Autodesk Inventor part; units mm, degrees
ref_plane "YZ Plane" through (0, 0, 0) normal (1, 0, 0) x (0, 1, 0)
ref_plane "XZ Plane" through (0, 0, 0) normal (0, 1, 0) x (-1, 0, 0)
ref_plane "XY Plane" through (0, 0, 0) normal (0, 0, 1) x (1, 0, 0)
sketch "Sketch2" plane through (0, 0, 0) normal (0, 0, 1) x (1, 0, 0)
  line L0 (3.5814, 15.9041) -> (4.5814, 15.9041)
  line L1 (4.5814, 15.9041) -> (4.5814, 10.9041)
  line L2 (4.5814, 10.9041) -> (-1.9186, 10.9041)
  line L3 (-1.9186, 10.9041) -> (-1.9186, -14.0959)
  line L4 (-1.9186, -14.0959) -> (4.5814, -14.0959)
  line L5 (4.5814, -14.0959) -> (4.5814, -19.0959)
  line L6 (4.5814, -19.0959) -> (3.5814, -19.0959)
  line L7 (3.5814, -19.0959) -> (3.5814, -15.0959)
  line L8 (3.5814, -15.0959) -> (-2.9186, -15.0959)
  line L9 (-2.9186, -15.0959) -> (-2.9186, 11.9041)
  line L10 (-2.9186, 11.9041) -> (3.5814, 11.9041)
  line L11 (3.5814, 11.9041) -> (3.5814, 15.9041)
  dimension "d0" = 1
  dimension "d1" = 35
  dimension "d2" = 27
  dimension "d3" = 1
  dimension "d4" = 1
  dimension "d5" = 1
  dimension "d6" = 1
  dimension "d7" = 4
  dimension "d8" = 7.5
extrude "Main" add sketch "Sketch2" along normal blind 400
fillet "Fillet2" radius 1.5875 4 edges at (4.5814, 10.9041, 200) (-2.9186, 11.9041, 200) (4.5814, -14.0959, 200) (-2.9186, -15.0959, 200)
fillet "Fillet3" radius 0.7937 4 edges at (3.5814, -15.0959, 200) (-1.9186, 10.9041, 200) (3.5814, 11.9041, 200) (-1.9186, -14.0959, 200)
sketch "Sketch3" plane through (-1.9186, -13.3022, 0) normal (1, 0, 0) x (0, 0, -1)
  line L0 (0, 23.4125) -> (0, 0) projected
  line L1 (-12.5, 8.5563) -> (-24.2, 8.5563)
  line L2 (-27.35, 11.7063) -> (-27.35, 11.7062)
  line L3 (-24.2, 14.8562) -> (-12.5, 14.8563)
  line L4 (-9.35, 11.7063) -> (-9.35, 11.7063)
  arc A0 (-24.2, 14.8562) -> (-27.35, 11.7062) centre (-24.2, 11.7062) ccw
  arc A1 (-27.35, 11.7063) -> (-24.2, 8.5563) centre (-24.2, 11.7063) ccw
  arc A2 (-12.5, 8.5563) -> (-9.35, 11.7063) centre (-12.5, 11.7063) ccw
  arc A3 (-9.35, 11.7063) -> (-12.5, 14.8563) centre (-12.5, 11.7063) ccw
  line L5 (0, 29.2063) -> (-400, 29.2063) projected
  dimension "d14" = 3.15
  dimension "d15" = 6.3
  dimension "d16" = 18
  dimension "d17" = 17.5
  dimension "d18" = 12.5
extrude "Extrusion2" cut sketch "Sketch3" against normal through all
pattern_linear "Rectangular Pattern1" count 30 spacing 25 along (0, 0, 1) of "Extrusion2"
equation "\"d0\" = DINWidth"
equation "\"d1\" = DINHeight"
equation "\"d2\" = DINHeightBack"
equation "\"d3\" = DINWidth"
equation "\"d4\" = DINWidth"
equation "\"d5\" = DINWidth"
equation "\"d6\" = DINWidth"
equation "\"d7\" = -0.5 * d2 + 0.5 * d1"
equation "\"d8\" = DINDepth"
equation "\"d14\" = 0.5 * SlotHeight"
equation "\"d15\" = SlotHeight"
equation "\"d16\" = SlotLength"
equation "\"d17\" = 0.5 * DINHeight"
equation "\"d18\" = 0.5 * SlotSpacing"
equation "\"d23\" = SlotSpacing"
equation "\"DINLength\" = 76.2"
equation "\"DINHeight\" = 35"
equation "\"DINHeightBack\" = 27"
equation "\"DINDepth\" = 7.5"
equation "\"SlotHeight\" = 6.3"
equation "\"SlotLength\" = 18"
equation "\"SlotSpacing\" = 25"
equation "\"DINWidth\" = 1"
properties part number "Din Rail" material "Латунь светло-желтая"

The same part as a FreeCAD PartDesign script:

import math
import FreeCAD as App
import Part
import Sketcher
Q = App.Units.Quantity


def edges_at(feature, points):
    """Names of the edges that pass closest to the given points."""
    edges = feature.Shape.Edges
    near = lambda p: min(range(len(edges)), key=lambda i: edges[i].distToShape(Part.Vertex(*p))[0])
    return sorted({f"Edge{near(p) + 1}" for p in points})

doc = App.newDocument("Part")
body = doc.addObject("PartDesign::Body", "Body")

# Sketch on XY plane
sketch1 = body.newObject("Sketcher::SketchObject", "Sketch")
sketch1.AttachmentSupport = (doc.getObject("XY_Plane"), [""])
sketch1.MapMode = "FlatFace"
sketch1.addGeometry([
    Part.LineSegment(App.Vector(4.6, 15.9, 0), App.Vector(3.6, 15.9, 0)),  # 0
    Part.LineSegment(App.Vector(3.6, 15.9, 0), App.Vector(3.6, 11.9, 0)),  # 1
    Part.LineSegment(App.Vector(3.6, 11.9, 0), App.Vector(-2.9, 11.9, 0)),  # 2
    Part.LineSegment(App.Vector(-2.9, 11.9, 0), App.Vector(-2.9, -15.1, 0)),  # 3
    Part.LineSegment(App.Vector(-2.9, -15.1, 0), App.Vector(3.6, -15.1, 0)),  # 4
    Part.LineSegment(App.Vector(3.6, -15.1, 0), App.Vector(3.6, -19.1, 0)),  # 5
    Part.LineSegment(App.Vector(3.6, -19.1, 0), App.Vector(4.6, -19.1, 0)),  # 6
    Part.LineSegment(App.Vector(4.6, -19.1, 0), App.Vector(4.6, -14.1, 0)),  # 7
    Part.LineSegment(App.Vector(4.6, -14.1, 0), App.Vector(-1.9, -14.1, 0)),  # 8
    Part.LineSegment(App.Vector(-1.9, -14.1, 0), App.Vector(-1.9, 10.9, 0)),  # 9
    Part.LineSegment(App.Vector(-1.9, 10.9, 0), App.Vector(4.6, 10.9, 0)),  # 10
    Part.LineSegment(App.Vector(4.6, 10.9, 0), App.Vector(4.6, 15.9, 0)),  # 11
], False)
sketch1.addConstraint([
    Sketcher.Constraint("Coincident", 0, 2, 1, 1),
    Sketcher.Constraint("Coincident", 1, 2, 2, 1),
    Sketcher.Constraint("Coincident", 2, 2, 3, 1),
    Sketcher.Constraint("Coincident", 3, 2, 4, 1),
    Sketcher.Constraint("Coincident", 4, 2, 5, 1),
    Sketcher.Constraint("Coincident", 5, 2, 6, 1),
    Sketcher.Constraint("Coincident", 6, 2, 7, 1),
    Sketcher.Constraint("Coincident", 7, 2, 8, 1),
    Sketcher.Constraint("Coincident", 8, 2, 9, 1),
    Sketcher.Constraint("Coincident", 9, 2, 10, 1),
    Sketcher.Constraint("Coincident", 10, 2, 11, 1),
    Sketcher.Constraint("Coincident", 11, 2, 0, 1),
    Sketcher.Constraint("Horizontal", 0),
    Sketcher.Constraint("Vertical", 1),
    Sketcher.Constraint("Horizontal", 2),
    Sketcher.Constraint("Vertical", 3),
    Sketcher.Constraint("Horizontal", 4),
    Sketcher.Constraint("Vertical", 5),
    Sketcher.Constraint("Horizontal", 6),
    Sketcher.Constraint("Vertical", 7),
    Sketcher.Constraint("Horizontal", 8),
    Sketcher.Constraint("Vertical", 9),
    Sketcher.Constraint("Horizontal", 10),
    Sketcher.Constraint("Vertical", 11),
    Sketcher.Constraint("Vertical", 1, 2, 4, 2),
    Sketcher.Constraint("Vertical", 7, 2, 10, 2),
    Sketcher.Constraint("Equal", 4, 8),
    Sketcher.Constraint("Equal", 1, 5),
    Sketcher.Constraint("Equal", 7, 11),
    Sketcher.Constraint("DistanceX", 0, 2, 0, 1, Q("1 mm")),
    Sketcher.Constraint("DistanceY", 1, 2, 1, 1, Q("4 mm")),
    Sketcher.Constraint("DistanceY", 3, 2, 3, 1, Q("27 mm")),
    Sketcher.Constraint("DistanceY", 4, 2, 7, 2, Q("1 mm")),
    Sketcher.Constraint("DistanceX", 3, 2, 6, 2, Q("7.5 mm")),
    Sketcher.Constraint("DistanceY", -1, 1, 0, 2, Q("15.904 mm")),
    Sketcher.Constraint("DistanceX", -1, 1, 0, 2, Q("3.5814 mm")),
])
pad1 = body.newObject("PartDesign::Pad", "Pad")
pad1.Profile = sketch1
pad1.Length = 400
doc.recompute()

fillet = body.newObject("PartDesign::Fillet", "Fillet")
fillet.Base = (pad1, edges_at(pad1, [
    (4.581, 10.904, 200),
    (-2.919, 11.904, 200),
    (4.581, -14.096, 200),
    (-2.919, -15.096, 200),
]))
fillet.Radius = 1.5875
doc.recompute()

fillet2 = body.newObject("PartDesign::Fillet", "Fillet001")
fillet2.Base = (fillet, edges_at(fillet, [
    (3.581, -15.096, 200),
    (-1.919, 10.904, 200),
    (3.581, 11.904, 200),
    (-1.919, -14.096, 200),
]))
fillet2.Radius = 0.7937

# Sketch on YZ plane
sketch2 = body.newObject("Sketcher::SketchObject", "Sketch001")
sketch2.AttachmentSupport = (doc.getObject("YZ_Plane"), [""])
sketch2.MapMode = "FlatFace"
sketch2.AttachmentOffset = App.Placement(App.Vector(0, 0, -1.9186), App.Rotation())
sketch2.addGeometry([
    Part.LineSegment(App.Vector(-4.7, 24.2, 0), App.Vector(-4.7, 12.5, 0)),  # 0
    Part.ArcOfCircle(Part.Circle(App.Vector(-1.6, 12.5, 0), App.Vector(0, 0, 1), 3.2), math.radians(180), math.radians(360)),  # 1
    Part.LineSegment(App.Vector(1.6, 12.5, 0), App.Vector(1.6, 24.2, 0)),  # 2
    Part.ArcOfCircle(Part.Circle(App.Vector(-1.6, 24.2, 0), App.Vector(0, 0, 1), 3.1), math.radians(0), math.radians(90)),  # 3
    Part.ArcOfCircle(Part.Circle(App.Vector(-1.6, 24.2, 0), App.Vector(0, 0, 1), 3.2), math.radians(90), math.radians(180)),  # 4
], False)
sketch2.addConstraint([
    Sketcher.Constraint("Tangent", 0, 2, 1, 1),
    Sketcher.Constraint("Tangent", 1, 2, 2, 1),
    Sketcher.Constraint("Tangent", 2, 2, 3, 1),
    Sketcher.Constraint("Tangent", 3, 2, 4, 1),
    Sketcher.Constraint("Tangent", 4, 2, 0, 1),
    Sketcher.Constraint("Vertical", 0),
    Sketcher.Constraint("Vertical", 2),
    Sketcher.Constraint("Equal", 1, 3),
    Sketcher.Constraint("Vertical", 4, 3, 3, 2),
    Sketcher.Constraint("Radius", 1, Q("3.15 mm")),
    Sketcher.Constraint("DistanceY", -1, 1, 1, 3, Q("12.5 mm")),
    Sketcher.Constraint("DistanceY", 0, 2, 0, 1, Q("11.7 mm")),
    Sketcher.Constraint("DistanceX", 1, 3, -1, 1, Q("1.596 mm")),
])
pocket1 = body.newObject("PartDesign::Pocket", "Pocket")
pocket1.Profile = sketch2
pocket1.Type = "ThroughAll"
doc.recompute()

linearpattern = body.newObject("PartDesign::LinearPattern", "LinearPattern")
linearpattern.Originals = [pocket1]
linearpattern.Direction = (doc.getObject("Z_Axis"), [""])
linearpattern.Mode = "offset"
linearpattern.Offset = 25
linearpattern.Occurrences = 30
body.Tip = linearpattern

doc.recompute()
